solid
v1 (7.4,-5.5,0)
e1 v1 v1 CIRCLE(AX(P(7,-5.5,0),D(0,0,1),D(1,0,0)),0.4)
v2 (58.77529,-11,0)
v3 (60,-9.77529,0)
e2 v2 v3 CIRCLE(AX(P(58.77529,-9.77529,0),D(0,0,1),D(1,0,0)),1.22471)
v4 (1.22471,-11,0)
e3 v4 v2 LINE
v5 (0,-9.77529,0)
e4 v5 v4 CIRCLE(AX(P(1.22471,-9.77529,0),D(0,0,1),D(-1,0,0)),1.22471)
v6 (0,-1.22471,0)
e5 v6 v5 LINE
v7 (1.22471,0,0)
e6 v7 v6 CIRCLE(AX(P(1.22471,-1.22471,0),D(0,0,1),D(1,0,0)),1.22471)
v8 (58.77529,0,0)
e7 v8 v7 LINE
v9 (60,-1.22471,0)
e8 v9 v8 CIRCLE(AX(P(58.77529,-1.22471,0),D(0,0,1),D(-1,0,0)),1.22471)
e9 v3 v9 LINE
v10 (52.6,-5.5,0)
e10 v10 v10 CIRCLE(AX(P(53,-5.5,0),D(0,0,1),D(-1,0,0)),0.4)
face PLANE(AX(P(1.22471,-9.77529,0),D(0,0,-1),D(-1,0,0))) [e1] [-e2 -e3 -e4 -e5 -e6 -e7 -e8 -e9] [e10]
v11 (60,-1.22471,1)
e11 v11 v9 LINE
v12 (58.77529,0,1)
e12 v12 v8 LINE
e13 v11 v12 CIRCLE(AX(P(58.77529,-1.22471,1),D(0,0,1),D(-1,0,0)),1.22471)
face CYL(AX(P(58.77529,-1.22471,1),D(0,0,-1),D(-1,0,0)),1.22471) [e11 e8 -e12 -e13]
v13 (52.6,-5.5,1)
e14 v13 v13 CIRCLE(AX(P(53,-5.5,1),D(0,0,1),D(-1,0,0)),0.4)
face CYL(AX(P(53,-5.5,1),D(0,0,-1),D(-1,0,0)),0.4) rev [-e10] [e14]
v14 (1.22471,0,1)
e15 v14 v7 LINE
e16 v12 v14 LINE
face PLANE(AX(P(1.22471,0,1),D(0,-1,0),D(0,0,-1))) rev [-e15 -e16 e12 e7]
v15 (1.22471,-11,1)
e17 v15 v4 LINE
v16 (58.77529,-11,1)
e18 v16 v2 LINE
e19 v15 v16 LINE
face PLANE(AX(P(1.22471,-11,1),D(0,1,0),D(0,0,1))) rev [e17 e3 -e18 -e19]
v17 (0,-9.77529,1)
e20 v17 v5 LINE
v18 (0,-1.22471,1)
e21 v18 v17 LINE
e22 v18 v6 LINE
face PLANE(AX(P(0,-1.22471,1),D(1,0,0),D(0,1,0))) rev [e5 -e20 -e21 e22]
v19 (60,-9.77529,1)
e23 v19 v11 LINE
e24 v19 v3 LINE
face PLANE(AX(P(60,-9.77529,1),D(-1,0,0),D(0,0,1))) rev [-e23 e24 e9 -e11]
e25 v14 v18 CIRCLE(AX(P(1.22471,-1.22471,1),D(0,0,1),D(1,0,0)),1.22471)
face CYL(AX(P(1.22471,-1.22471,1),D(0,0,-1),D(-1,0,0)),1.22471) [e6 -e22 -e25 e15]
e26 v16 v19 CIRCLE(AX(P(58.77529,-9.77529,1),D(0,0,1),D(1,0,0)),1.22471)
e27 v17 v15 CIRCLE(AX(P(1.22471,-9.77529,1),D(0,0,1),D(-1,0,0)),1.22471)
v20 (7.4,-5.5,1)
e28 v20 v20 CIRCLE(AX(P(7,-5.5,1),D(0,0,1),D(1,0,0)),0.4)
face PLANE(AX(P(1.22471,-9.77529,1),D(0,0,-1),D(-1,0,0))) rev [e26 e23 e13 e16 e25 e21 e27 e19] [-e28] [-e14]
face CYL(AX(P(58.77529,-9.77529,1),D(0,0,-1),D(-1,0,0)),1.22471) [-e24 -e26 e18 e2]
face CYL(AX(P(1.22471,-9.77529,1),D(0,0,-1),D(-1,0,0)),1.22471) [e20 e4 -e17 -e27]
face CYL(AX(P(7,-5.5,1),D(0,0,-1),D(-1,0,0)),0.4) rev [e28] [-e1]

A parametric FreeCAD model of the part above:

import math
import FreeCAD as App
import Part
import Sketcher
from FreeCAD import Vector

doc = App.newDocument("Part")
body = doc.addObject("PartDesign::Body", "Body")

# Sketch on XY plane
sketch1 = body.newObject("Sketcher::SketchObject", "Sketch")
sketch1.AttachmentSupport = (doc.getObject("XY_Plane"), [""])
sketch1.MapMode = "FlatFace"
sketch1.addGeometry(Part.LineSegment(Vector(58.77529, 0, 0), Vector(1.22471, 0, 0)), False)
sketch1.addGeometry(Part.ArcOfCircle(Part.Circle(Vector(1.22471, -1.22471, 0), Vector(0, 0, 1), 1.22471), math.radians(90), math.radians(180)), False)
sketch1.addGeometry(Part.LineSegment(Vector(0, -1.22471, 0), Vector(0, -9.77529, 0)), False)
sketch1.addGeometry(Part.ArcOfCircle(Part.Circle(Vector(1.22471, -9.77529, 0), Vector(0, 0, 1), 1.22471), math.radians(180), math.radians(270)), False)
sketch1.addGeometry(Part.LineSegment(Vector(1.22471, -11, 0), Vector(58.77529, -11, 0)), False)
sketch1.addGeometry(Part.ArcOfCircle(Part.Circle(Vector(58.77529, -9.77529, 0), Vector(0, 0, 1), 1.22471), math.radians(-90), math.radians(0)), False)
sketch1.addGeometry(Part.LineSegment(Vector(60, -9.77529, 0), Vector(60, -1.22471, 0)), False)
sketch1.addGeometry(Part.ArcOfCircle(Part.Circle(Vector(58.77529, -1.22471, 0), Vector(0, 0, 1), 1.22471), math.radians(0), math.radians(90)), False)
sketch1.addGeometry(Part.Circle(Vector(53, -5.5, 0), Vector(0, 0, 1), 0.4), False)
sketch1.addGeometry(Part.Circle(Vector(7, -5.5, 0), Vector(0, 0, 1), 0.4), False)
sketch1.addConstraint(Sketcher.Constraint("Tangent", 0, 2, 1, 1))
sketch1.addConstraint(Sketcher.Constraint("Tangent", 1, 2, 2, 1))
sketch1.addConstraint(Sketcher.Constraint("Tangent", 2, 2, 3, 1))
sketch1.addConstraint(Sketcher.Constraint("Tangent", 3, 2, 4, 1))
sketch1.addConstraint(Sketcher.Constraint("Tangent", 4, 2, 5, 1))
sketch1.addConstraint(Sketcher.Constraint("Tangent", 5, 2, 6, 1))
sketch1.addConstraint(Sketcher.Constraint("Tangent", 6, 2, 7, 1))
sketch1.addConstraint(Sketcher.Constraint("Tangent", 7, 2, 0, 1))
sketch1.addConstraint(Sketcher.Constraint("Horizontal", 0))
sketch1.addConstraint(Sketcher.Constraint("Vertical", 2))
sketch1.addConstraint(Sketcher.Constraint("Horizontal", 4))
sketch1.addConstraint(Sketcher.Constraint("Vertical", 6))
sketch1.addConstraint(Sketcher.Constraint("Equal", 1, 3))
sketch1.addConstraint(Sketcher.Constraint("Equal", 3, 5))
sketch1.addConstraint(Sketcher.Constraint("Equal", 5, 7))
sketch1.addConstraint(Sketcher.Constraint("Equal", 8, 9))
sketch1.addConstraint(Sketcher.Constraint("PointOnObject", 0, 2, -1))
sketch1.addConstraint(Sketcher.Constraint("PointOnObject", 1, 2, -2))
sketch1.addConstraint(Sketcher.Constraint("Horizontal", 8, 3, 9, 3))
sketch1.addConstraint(Sketcher.Constraint("Diameter", 8, 0.8))
sketch1.addConstraint(Sketcher.Constraint("DistanceX", -1, 1, 8, 3, 53.0))
sketch1.addConstraint(Sketcher.Constraint("DistanceX", -1, 1, 9, 3, 7.0))
sketch1.addConstraint(Sketcher.Constraint("DistanceY", 3, 2, -1, 1, 11.0))
sketch1.addConstraint(Sketcher.Constraint("DistanceX", -1, 1, 5, 2, 60.0))
sketch1.addConstraint(Sketcher.Constraint("DistanceY", 8, 3, -1, 1, 5.5))
sketch1.addConstraint(Sketcher.Constraint("Radius", 1, 1.22471))
pad1 = body.newObject("PartDesign::Pad", "Pad")
pad1.Profile = sketch1
pad1.Length = 1

doc.recompute()
